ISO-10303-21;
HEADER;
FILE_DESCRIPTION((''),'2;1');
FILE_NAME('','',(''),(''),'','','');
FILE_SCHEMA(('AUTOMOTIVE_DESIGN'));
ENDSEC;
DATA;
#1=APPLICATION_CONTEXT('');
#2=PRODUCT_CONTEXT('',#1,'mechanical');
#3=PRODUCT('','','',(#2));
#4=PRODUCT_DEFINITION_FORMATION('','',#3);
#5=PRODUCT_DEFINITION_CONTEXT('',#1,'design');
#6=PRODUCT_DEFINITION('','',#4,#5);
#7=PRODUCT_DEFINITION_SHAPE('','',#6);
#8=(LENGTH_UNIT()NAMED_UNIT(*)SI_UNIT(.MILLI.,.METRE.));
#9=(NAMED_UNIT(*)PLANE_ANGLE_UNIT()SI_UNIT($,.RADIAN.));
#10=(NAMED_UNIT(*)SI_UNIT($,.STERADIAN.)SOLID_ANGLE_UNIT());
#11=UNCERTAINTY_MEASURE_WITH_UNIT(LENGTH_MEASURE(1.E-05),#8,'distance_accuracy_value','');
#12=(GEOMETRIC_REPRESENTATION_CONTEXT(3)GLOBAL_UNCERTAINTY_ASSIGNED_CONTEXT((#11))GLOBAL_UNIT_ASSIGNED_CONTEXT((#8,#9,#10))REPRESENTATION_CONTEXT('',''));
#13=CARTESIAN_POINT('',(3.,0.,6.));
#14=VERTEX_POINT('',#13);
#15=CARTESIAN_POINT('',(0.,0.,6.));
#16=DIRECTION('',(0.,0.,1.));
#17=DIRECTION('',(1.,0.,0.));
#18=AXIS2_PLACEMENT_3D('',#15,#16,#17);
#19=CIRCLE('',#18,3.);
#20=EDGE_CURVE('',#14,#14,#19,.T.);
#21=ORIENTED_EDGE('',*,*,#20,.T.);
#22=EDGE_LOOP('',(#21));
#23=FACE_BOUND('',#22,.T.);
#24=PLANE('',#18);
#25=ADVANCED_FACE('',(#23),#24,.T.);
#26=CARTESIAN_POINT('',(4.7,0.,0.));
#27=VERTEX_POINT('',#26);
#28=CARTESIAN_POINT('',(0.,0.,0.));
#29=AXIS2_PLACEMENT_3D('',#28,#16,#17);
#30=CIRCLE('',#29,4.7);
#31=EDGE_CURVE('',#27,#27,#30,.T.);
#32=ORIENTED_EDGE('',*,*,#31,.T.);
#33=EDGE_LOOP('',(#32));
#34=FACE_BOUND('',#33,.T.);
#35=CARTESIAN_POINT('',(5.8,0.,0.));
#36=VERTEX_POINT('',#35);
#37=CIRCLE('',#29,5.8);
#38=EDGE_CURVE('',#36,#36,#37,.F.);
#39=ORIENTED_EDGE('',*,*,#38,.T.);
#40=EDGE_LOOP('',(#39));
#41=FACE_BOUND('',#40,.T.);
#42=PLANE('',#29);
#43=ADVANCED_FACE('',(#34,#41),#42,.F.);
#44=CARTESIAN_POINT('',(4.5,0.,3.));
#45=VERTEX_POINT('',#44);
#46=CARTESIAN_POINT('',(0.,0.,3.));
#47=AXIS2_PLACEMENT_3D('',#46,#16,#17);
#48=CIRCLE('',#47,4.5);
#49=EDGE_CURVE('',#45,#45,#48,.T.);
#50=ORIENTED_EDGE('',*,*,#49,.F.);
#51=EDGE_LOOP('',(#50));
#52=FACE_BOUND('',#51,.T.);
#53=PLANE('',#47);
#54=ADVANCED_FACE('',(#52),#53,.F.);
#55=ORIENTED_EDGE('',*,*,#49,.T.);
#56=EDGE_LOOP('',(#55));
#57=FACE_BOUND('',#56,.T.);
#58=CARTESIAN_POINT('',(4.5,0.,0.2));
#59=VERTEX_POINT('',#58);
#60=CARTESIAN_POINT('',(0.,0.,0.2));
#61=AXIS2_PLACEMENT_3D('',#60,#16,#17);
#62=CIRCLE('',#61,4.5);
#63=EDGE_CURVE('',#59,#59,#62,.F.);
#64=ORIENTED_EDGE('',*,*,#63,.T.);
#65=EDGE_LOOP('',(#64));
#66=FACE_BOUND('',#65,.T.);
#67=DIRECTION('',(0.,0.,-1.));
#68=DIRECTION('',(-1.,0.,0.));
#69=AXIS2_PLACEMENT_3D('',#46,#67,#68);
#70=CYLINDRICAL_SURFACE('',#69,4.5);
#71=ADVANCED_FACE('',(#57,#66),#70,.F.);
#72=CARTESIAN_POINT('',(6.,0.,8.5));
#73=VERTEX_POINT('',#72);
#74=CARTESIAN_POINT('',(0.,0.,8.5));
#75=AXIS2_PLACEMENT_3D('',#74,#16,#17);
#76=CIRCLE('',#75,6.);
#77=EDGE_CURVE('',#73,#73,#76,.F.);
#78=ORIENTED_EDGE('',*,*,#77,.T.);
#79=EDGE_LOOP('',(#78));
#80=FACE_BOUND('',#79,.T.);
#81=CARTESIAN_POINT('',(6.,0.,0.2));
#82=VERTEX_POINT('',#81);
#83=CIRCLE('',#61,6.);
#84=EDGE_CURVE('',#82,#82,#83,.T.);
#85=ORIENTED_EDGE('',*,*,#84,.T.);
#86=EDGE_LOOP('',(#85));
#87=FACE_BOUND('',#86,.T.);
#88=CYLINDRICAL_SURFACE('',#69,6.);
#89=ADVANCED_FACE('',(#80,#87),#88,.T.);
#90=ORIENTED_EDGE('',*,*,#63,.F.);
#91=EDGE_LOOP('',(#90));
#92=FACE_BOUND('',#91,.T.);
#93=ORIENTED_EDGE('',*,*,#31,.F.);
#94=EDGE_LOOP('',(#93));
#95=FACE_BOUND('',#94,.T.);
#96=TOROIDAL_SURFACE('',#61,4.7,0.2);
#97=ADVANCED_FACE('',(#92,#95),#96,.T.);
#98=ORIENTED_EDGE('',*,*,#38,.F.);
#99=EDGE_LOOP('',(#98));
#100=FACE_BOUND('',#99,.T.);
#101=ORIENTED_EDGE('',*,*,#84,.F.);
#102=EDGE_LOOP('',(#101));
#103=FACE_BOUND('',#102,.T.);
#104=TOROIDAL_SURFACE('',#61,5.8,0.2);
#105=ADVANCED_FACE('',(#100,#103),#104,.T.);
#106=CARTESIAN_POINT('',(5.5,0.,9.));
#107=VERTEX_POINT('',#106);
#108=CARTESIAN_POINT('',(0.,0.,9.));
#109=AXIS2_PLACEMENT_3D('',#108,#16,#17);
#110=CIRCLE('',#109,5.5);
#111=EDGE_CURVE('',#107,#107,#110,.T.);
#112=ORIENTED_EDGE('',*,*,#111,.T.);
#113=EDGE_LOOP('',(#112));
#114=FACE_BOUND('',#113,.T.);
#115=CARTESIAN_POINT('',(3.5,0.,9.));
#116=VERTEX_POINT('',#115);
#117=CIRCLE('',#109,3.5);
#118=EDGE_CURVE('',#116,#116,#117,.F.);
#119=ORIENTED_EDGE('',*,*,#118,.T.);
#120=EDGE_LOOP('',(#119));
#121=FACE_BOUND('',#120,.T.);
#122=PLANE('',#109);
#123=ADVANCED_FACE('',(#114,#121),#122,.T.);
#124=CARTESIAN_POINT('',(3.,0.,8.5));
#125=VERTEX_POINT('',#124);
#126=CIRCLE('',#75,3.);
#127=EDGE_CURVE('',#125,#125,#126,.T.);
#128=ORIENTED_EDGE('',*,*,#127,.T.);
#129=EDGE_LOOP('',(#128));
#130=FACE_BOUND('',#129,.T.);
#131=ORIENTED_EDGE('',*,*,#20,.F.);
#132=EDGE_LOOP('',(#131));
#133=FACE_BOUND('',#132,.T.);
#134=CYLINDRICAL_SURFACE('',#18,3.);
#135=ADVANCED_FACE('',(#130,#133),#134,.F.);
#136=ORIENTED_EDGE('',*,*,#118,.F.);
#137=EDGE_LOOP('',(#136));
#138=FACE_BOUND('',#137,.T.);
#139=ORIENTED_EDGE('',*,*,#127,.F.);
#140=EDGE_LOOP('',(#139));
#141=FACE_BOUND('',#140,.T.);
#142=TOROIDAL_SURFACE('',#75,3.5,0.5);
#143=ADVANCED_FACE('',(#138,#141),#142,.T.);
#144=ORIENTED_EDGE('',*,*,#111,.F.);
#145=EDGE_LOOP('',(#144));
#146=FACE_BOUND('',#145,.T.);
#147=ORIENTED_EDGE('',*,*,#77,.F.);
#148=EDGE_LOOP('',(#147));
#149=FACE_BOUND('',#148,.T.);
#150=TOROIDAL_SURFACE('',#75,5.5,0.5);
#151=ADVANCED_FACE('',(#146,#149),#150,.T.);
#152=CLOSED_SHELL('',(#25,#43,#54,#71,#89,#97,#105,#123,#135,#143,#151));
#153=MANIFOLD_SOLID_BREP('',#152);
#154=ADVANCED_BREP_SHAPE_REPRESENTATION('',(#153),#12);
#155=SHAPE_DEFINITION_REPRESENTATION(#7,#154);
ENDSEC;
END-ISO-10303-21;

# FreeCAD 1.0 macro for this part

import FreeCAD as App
import Part
import Sketcher

V = App.Vector
Q = App.Units.Quantity


def edges_at(feature, points):
    """Names of the edges that pass closest to the given points."""
    edges = feature.Shape.Edges
    near = lambda p: min(range(len(edges)), key=lambda i: edges[i].distToShape(Part.Vertex(*p))[0])
    return sorted({f"Edge{near(p) + 1}" for p in points})

doc = App.newDocument("Part")
params = doc.addObject("Spreadsheet::Sheet", "Params")
for row, (alias, value) in enumerate([
    ("sketch1_diameter", "12 mm"),
    ("sketch1_diameter2", "9 mm"),
    ("pad1_length", "3 mm"),
    ("sketch2_diameter", "12 mm"),
    ("pad2_length", "6 mm"),
    ("sketch3_diameter", "6 mm"),
    ("pocket1_length", "3 mm"),
    ("fillet_radius", "0.5 mm"),
    ("fillet2_radius", "0.5 mm"),
    ("fillet3_radius", "0.2 mm"),
], start=1):
    params.set(f"A{row}", alias)
    params.set(f"B{row}", "=" + value)
    params.setAlias(f"B{row}", alias)

body = doc.addObject("PartDesign::Body", "Body")

sketch1 = doc.addObject("Sketcher::SketchObject", "Sketch")
body.addObject(sketch1)
sketch1.AttachmentSupport = (doc.XY_Plane, [""])
sketch1.MapMode = "FlatFace"
sketch1.addGeometry([
    Part.Circle(V(0, 0, 0), V(0, 0, 1), 6),
    Part.Circle(V(0, 0, 0), V(0, 0, 1), 4.5),
], False)
sketch1.addConstraint([
    Sketcher.Constraint("Coincident", 0, 3, -1, 1),
    Sketcher.Constraint("Coincident", 1, 3, -1, 1),
    Sketcher.Constraint("Diameter", 0, Q("12 mm")),
    Sketcher.Constraint("Diameter", 1, Q("9 mm")),
])
sketch1.setExpression("Constraints[2]", "Params.sketch1_diameter")
sketch1.setExpression("Constraints[3]", "Params.sketch1_diameter2")
pad1 = doc.addObject("PartDesign::Pad", "Pad")
body.addObject(pad1)
pad1.Profile = sketch1
pad1.setExpression("Length", "Params.pad1_length")

sketch2 = doc.addObject("Sketcher::SketchObject", "Sketch001")
body.addObject(sketch2)
sketch2.AttachmentSupport = (doc.XY_Plane, [""])
sketch2.MapMode = "FlatFace"
sketch2.AttachmentOffset = App.Placement(V(0, 0, 3), App.Rotation())
sketch2.addGeometry(Part.Circle(V(0, 0, 0), V(0, 0, 1), 6), False)
sketch2.addConstraint([
    Sketcher.Constraint("Coincident", 0, 3, -1, 1),
    Sketcher.Constraint("Diameter", 0, Q("12 mm")),
])
sketch2.setExpression("Constraints[1]", "Params.sketch2_diameter")
pad2 = doc.addObject("PartDesign::Pad", "Pad001")
body.addObject(pad2)
pad2.Profile = sketch2
pad2.setExpression("Length", "Params.pad2_length")

sketch3 = doc.addObject("Sketcher::SketchObject", "Sketch002")
body.addObject(sketch3)
sketch3.AttachmentSupport = (doc.XY_Plane, [""])
sketch3.MapMode = "FlatFace"
sketch3.AttachmentOffset = App.Placement(V(0, 0, 9), App.Rotation())
sketch3.addGeometry(Part.Circle(V(0, 0, 0), V(0, 0, 1), 3), False)
sketch3.addConstraint([
    Sketcher.Constraint("Coincident", 0, 3, -1, 1),
    Sketcher.Constraint("Diameter", 0, Q("6 mm")),
])
sketch3.setExpression("Constraints[1]", "Params.sketch3_diameter")
pocket1 = doc.addObject("PartDesign::Pocket", "Pocket")
body.addObject(pocket1)
pocket1.Profile = sketch3
pocket1.setExpression("Length", "Params.pocket1_length")
doc.recompute()

fillet = doc.addObject("PartDesign::Fillet", "Fillet")
body.addObject(fillet)
fillet.Base = (pocket1, edges_at(pocket1, [(-3, 0, 9)]))
fillet.setExpression("Radius", "Params.fillet_radius")
doc.recompute()

fillet2 = doc.addObject("PartDesign::Fillet", "Fillet001")
body.addObject(fillet2)
fillet2.Base = (fillet, edges_at(fillet, [(-6, 0, 9)]))
fillet2.setExpression("Radius", "Params.fillet2_radius")
doc.recompute()

fillet3 = doc.addObject("PartDesign::Fillet", "Fillet002")
body.addObject(fillet3)
fillet3.Base = (fillet2, edges_at(fillet2, [(-6, 0, 0), (-4.5, 0, 0)]))
fillet3.setExpression("Radius", "Params.fillet3_radius")

doc.recompute()
